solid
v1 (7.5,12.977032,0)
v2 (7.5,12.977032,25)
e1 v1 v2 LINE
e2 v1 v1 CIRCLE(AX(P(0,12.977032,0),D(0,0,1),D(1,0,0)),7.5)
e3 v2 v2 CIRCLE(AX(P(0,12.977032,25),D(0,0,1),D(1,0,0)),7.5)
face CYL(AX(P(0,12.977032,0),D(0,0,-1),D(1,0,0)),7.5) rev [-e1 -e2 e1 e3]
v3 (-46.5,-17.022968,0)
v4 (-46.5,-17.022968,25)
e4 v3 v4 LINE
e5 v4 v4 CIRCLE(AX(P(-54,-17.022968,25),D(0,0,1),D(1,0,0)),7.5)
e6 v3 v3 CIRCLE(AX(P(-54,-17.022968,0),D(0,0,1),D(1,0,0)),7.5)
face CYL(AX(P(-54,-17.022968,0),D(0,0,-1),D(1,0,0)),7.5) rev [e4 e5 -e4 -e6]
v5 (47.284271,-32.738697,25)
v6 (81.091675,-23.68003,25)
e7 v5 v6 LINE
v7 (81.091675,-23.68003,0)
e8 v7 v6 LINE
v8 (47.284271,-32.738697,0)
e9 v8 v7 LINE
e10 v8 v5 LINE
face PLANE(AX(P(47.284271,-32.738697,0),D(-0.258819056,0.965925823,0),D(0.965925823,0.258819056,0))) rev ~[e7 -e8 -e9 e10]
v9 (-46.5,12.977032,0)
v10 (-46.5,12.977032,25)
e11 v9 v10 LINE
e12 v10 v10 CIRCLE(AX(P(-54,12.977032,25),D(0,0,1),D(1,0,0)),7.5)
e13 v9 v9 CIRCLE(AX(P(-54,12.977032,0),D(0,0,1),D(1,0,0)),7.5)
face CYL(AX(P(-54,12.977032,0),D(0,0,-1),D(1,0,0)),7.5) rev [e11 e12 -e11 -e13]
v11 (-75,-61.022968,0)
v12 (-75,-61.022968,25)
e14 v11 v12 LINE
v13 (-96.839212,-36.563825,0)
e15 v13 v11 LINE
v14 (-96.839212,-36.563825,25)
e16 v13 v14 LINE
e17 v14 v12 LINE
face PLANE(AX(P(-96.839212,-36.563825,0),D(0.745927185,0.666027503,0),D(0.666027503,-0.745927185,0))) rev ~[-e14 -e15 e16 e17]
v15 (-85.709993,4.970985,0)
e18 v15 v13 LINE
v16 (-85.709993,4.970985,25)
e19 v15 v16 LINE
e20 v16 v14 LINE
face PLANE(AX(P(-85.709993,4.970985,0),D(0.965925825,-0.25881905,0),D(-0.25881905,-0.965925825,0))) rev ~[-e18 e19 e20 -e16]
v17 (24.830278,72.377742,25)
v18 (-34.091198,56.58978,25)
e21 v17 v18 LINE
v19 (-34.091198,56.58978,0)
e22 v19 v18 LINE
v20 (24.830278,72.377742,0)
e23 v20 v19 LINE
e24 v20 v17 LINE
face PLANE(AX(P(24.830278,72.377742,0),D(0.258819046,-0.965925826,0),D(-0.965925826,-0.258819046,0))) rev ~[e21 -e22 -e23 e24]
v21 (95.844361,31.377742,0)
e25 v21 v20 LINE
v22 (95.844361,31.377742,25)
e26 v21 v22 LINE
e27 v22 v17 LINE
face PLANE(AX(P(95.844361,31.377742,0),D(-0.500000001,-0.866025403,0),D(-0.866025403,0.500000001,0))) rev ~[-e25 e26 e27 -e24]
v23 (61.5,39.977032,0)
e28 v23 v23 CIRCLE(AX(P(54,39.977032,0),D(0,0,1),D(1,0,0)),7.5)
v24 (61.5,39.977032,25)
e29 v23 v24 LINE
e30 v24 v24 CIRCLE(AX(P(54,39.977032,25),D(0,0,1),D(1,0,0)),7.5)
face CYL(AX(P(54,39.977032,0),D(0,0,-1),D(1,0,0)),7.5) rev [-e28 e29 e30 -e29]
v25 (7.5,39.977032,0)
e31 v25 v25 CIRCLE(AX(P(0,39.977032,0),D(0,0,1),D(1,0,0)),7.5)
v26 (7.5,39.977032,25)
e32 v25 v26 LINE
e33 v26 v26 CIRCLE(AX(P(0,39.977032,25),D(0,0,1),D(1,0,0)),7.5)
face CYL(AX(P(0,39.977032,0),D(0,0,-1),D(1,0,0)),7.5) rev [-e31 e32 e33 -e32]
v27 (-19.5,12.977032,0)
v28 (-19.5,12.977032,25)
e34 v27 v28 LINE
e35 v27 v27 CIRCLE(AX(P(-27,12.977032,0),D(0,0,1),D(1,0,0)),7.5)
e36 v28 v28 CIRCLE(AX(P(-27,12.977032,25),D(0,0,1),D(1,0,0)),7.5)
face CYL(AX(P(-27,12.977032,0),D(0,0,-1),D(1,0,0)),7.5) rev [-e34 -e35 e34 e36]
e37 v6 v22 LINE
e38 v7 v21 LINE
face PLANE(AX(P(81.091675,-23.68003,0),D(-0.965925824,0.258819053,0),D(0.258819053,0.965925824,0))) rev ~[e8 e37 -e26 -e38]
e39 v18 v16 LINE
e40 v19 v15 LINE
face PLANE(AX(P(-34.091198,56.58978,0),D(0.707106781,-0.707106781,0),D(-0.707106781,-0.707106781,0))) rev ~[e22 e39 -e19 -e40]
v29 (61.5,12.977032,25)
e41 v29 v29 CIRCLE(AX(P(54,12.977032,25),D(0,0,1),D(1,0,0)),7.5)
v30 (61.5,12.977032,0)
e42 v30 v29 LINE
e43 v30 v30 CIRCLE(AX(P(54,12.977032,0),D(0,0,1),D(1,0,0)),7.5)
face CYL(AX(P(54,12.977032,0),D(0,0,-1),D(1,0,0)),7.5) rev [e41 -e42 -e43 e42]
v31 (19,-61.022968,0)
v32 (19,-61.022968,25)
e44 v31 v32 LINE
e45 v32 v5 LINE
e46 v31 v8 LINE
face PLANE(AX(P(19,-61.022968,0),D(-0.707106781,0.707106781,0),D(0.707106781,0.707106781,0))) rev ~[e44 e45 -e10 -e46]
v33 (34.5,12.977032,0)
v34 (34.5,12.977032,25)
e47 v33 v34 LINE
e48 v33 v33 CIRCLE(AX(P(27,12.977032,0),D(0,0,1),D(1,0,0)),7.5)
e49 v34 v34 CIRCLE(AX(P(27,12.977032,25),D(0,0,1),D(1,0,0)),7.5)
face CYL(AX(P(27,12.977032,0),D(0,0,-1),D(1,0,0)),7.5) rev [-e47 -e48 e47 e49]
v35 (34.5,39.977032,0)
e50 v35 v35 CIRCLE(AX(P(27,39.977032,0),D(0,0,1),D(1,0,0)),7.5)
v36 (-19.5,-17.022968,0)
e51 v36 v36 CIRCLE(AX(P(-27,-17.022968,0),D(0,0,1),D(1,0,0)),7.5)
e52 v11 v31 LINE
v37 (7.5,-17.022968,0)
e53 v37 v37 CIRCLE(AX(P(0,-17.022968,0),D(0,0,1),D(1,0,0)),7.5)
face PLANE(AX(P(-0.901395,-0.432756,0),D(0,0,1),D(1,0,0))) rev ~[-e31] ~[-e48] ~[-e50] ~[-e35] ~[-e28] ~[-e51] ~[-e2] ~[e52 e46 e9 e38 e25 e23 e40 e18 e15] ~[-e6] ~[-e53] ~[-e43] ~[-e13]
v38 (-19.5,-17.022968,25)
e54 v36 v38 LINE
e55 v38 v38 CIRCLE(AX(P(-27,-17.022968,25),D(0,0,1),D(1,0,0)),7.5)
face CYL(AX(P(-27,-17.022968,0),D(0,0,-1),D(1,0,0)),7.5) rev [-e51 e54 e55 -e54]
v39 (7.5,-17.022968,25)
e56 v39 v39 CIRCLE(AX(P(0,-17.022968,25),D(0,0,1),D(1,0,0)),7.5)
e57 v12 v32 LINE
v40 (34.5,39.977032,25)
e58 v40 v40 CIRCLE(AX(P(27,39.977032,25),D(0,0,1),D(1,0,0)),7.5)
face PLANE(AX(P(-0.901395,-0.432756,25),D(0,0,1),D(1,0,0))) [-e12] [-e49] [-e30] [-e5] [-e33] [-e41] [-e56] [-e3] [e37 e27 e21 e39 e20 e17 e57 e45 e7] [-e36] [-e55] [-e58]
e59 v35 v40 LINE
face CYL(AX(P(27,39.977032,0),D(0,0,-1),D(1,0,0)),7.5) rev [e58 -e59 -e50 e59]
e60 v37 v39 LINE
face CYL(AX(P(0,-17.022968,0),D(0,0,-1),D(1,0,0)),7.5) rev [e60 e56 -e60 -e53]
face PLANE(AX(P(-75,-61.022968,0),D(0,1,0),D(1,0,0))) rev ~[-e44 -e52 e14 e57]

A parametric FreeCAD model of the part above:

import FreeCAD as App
import Part
import Sketcher
Q = App.Units.Quantity


def add_polygon(sketch, points):
    """Adds a closed chain of lines whose ends are joined by coincident constraints."""
    first, n = sketch.GeometryCount, len(points)
    for a, b in zip(points, points[1:] + points[:1]):
        sketch.addGeometry(Part.LineSegment(App.Vector(*a, 0), App.Vector(*b, 0)), False)
    for i in range(n):
        sketch.addConstraint(Sketcher.Constraint("Coincident", first + i, 2, first + (i + 1) % n, 1))

doc = App.newDocument("Part")
params = doc.addObject("Spreadsheet::Sheet", "Params")
for row, (alias, value) in enumerate([
    ("sketch1_diameter", "15 mm"),
    ("sketch1_width", "94 mm"),
    ("sketch1_length", "40 mm"),
    ("sketch1_length2", "35 mm"),
    ("sketch1_length3", "57 mm"),
    ("pad1_length", "25 mm"),
], start=1):
    params.set(f"A{row}", alias)
    params.set(f"B{row}", "=" + value)
    params.setAlias(f"B{row}", alias)

body = doc.addObject("PartDesign::Body", "Body")

# Sketch on XY plane
sketch1 = body.newObject("Sketcher::SketchObject", "Sketch")
sketch1.AttachmentSupport = (doc.getObject("XY_Plane"), [""])
sketch1.MapMode = "FlatFace"
add_polygon(sketch1, [(-96.839212, -36.563825), (-75, -61.022968), (19, -61.022968), (47.284271, -32.738697), (81.091675, -23.68003), (95.844361, 31.377742), (24.830278, 72.377742), (-34.091198, 56.58978), (-85.709993, 4.970985)])  # lines 0-8
sketch1.addGeometry(Part.Circle(App.Vector(-54, -17.022968, 0), App.Vector(0, 0, 1), 7.5), False)  # 9
sketch1.addGeometry(Part.Circle(App.Vector(-27, -17.022968, 0), App.Vector(0, 0, 1), 7.5), False)  # 10
sketch1.addGeometry(Part.Circle(App.Vector(0, -17.022968, 0), App.Vector(0, 0, 1), 7.5), False)  # 11
sketch1.addGeometry(Part.Circle(App.Vector(-54, 12.977032, 0), App.Vector(0, 0, 1), 7.5), False)  # 12
sketch1.addGeometry(Part.Circle(App.Vector(-27, 12.977032, 0), App.Vector(0, 0, 1), 7.5), False)  # 13
sketch1.addGeometry(Part.Circle(App.Vector(0, 12.977032, 0), App.Vector(0, 0, 1), 7.5), False)  # 14
sketch1.addGeometry(Part.Circle(App.Vector(27, 12.977032, 0), App.Vector(0, 0, 1), 7.5), False)  # 15
sketch1.addGeometry(Part.Circle(App.Vector(54, 12.977032, 0), App.Vector(0, 0, 1), 7.5), False)  # 16
sketch1.addGeometry(Part.Circle(App.Vector(0, 39.977032, 0), App.Vector(0, 0, 1), 7.5), False)  # 17
sketch1.addGeometry(Part.Circle(App.Vector(27, 39.977032, 0), App.Vector(0, 0, 1), 7.5), False)  # 18
sketch1.addGeometry(Part.Circle(App.Vector(54, 39.977032, 0), App.Vector(0, 0, 1), 7.5), False)  # 19
sketch1.addConstraint([
    Sketcher.Constraint("Horizontal", 1),
    Sketcher.Constraint("Equal", 9, 10),
    Sketcher.Constraint("Equal", 10, 11),
    Sketcher.Constraint("Equal", 11, 12),
    Sketcher.Constraint("Equal", 12, 13),
    Sketcher.Constraint("Equal", 13, 14),
    Sketcher.Constraint("Equal", 14, 15),
    Sketcher.Constraint("Equal", 15, 16),
    Sketcher.Constraint("Equal", 16, 17),
    Sketcher.Constraint("Equal", 17, 18),
    Sketcher.Constraint("Equal", 18, 19),
    Sketcher.Constraint("Symmetric", 13, 3, 15, 3, -2),
    Sketcher.Constraint("Symmetric", 12, 3, 16, 3, -2),
    Sketcher.Constraint("PointOnObject", 11, 3, -2),
    Sketcher.Constraint("PointOnObject", 14, 3, -2),
    Sketcher.Constraint("PointOnObject", 17, 3, -2),
    Sketcher.Constraint("Parallel", 3, 6),
    Sketcher.Constraint("Parallel", 2, 7),
    Sketcher.Constraint("Parallel", 4, 8),
    Sketcher.Constraint("Horizontal", 9, 3, 10, 3),
    Sketcher.Constraint("Horizontal", 10, 3, 11, 3),
    Sketcher.Constraint("Horizontal", 12, 3, 13, 3),
    Sketcher.Constraint("Horizontal", 13, 3, 14, 3),
    Sketcher.Constraint("Horizontal", 17, 3, 18, 3),
    Sketcher.Constraint("Horizontal", 18, 3, 19, 3),
    Sketcher.Constraint("Vertical", 9, 3, 12, 3),
    Sketcher.Constraint("Vertical", 10, 3, 13, 3),
    Sketcher.Constraint("Vertical", 15, 3, 18, 3),
    Sketcher.Constraint("Vertical", 16, 3, 19, 3),
    Sketcher.Constraint("Diameter", 9, 15.0),
    Sketcher.Constraint("DistanceX", 1, 1, 1, 2, 94.0),
    Sketcher.Constraint("Angle", 2, Q("45 deg")),
    Sketcher.Constraint("Angle", 3, Q("15.000001 deg")),
    Sketcher.Constraint("Angle", 4, Q("75 deg")),
    Sketcher.Constraint("Angle", 5, Q("150 deg")),
    Sketcher.Constraint("Distance", 2, 40.0),
    Sketcher.Constraint("Distance", 3, 35.0),
    Sketcher.Constraint("Distance", 4, 57.0),
    Sketcher.Constraint("Distance", 5, 82.0),
    Sketcher.Constraint("Distance", 6, 61.000001),
    Sketcher.Constraint("Distance", 7, 73.0),
    Sketcher.Constraint("Distance", 8, 43.0),
    Sketcher.Constraint("DistanceX", 9, 3, -1, 1, 54.0),
    Sketcher.Constraint("DistanceX", 10, 3, -1, 1, 27.0),
    Sketcher.Constraint("DistanceX", 0, 2, -1, 1, 75.0),
    Sketcher.Constraint("DistanceY", 9, 3, 12, 3, 30.0),
    Sketcher.Constraint("DistanceY", 14, 3, 17, 3, 27.0),
    Sketcher.Constraint("DistanceY", 0, 2, 9, 3, 44.0),
    Sketcher.Constraint("DistanceY", 3, 2, -1, 1, 23.68003),
])
sketch1.setExpression("Constraints[38]", "Params.sketch1_diameter")
sketch1.setExpression("Constraints[39]", "Params.sketch1_width")
sketch1.setExpression("Constraints[44]", "Params.sketch1_length")
sketch1.setExpression("Constraints[45]", "Params.sketch1_length2")
sketch1.setExpression("Constraints[46]", "Params.sketch1_length3")
pad1 = body.newObject("PartDesign::Pad", "Pad")
pad1.Profile = sketch1
pad1.setExpression("Length", "Params.pad1_length")

doc.recompute()
